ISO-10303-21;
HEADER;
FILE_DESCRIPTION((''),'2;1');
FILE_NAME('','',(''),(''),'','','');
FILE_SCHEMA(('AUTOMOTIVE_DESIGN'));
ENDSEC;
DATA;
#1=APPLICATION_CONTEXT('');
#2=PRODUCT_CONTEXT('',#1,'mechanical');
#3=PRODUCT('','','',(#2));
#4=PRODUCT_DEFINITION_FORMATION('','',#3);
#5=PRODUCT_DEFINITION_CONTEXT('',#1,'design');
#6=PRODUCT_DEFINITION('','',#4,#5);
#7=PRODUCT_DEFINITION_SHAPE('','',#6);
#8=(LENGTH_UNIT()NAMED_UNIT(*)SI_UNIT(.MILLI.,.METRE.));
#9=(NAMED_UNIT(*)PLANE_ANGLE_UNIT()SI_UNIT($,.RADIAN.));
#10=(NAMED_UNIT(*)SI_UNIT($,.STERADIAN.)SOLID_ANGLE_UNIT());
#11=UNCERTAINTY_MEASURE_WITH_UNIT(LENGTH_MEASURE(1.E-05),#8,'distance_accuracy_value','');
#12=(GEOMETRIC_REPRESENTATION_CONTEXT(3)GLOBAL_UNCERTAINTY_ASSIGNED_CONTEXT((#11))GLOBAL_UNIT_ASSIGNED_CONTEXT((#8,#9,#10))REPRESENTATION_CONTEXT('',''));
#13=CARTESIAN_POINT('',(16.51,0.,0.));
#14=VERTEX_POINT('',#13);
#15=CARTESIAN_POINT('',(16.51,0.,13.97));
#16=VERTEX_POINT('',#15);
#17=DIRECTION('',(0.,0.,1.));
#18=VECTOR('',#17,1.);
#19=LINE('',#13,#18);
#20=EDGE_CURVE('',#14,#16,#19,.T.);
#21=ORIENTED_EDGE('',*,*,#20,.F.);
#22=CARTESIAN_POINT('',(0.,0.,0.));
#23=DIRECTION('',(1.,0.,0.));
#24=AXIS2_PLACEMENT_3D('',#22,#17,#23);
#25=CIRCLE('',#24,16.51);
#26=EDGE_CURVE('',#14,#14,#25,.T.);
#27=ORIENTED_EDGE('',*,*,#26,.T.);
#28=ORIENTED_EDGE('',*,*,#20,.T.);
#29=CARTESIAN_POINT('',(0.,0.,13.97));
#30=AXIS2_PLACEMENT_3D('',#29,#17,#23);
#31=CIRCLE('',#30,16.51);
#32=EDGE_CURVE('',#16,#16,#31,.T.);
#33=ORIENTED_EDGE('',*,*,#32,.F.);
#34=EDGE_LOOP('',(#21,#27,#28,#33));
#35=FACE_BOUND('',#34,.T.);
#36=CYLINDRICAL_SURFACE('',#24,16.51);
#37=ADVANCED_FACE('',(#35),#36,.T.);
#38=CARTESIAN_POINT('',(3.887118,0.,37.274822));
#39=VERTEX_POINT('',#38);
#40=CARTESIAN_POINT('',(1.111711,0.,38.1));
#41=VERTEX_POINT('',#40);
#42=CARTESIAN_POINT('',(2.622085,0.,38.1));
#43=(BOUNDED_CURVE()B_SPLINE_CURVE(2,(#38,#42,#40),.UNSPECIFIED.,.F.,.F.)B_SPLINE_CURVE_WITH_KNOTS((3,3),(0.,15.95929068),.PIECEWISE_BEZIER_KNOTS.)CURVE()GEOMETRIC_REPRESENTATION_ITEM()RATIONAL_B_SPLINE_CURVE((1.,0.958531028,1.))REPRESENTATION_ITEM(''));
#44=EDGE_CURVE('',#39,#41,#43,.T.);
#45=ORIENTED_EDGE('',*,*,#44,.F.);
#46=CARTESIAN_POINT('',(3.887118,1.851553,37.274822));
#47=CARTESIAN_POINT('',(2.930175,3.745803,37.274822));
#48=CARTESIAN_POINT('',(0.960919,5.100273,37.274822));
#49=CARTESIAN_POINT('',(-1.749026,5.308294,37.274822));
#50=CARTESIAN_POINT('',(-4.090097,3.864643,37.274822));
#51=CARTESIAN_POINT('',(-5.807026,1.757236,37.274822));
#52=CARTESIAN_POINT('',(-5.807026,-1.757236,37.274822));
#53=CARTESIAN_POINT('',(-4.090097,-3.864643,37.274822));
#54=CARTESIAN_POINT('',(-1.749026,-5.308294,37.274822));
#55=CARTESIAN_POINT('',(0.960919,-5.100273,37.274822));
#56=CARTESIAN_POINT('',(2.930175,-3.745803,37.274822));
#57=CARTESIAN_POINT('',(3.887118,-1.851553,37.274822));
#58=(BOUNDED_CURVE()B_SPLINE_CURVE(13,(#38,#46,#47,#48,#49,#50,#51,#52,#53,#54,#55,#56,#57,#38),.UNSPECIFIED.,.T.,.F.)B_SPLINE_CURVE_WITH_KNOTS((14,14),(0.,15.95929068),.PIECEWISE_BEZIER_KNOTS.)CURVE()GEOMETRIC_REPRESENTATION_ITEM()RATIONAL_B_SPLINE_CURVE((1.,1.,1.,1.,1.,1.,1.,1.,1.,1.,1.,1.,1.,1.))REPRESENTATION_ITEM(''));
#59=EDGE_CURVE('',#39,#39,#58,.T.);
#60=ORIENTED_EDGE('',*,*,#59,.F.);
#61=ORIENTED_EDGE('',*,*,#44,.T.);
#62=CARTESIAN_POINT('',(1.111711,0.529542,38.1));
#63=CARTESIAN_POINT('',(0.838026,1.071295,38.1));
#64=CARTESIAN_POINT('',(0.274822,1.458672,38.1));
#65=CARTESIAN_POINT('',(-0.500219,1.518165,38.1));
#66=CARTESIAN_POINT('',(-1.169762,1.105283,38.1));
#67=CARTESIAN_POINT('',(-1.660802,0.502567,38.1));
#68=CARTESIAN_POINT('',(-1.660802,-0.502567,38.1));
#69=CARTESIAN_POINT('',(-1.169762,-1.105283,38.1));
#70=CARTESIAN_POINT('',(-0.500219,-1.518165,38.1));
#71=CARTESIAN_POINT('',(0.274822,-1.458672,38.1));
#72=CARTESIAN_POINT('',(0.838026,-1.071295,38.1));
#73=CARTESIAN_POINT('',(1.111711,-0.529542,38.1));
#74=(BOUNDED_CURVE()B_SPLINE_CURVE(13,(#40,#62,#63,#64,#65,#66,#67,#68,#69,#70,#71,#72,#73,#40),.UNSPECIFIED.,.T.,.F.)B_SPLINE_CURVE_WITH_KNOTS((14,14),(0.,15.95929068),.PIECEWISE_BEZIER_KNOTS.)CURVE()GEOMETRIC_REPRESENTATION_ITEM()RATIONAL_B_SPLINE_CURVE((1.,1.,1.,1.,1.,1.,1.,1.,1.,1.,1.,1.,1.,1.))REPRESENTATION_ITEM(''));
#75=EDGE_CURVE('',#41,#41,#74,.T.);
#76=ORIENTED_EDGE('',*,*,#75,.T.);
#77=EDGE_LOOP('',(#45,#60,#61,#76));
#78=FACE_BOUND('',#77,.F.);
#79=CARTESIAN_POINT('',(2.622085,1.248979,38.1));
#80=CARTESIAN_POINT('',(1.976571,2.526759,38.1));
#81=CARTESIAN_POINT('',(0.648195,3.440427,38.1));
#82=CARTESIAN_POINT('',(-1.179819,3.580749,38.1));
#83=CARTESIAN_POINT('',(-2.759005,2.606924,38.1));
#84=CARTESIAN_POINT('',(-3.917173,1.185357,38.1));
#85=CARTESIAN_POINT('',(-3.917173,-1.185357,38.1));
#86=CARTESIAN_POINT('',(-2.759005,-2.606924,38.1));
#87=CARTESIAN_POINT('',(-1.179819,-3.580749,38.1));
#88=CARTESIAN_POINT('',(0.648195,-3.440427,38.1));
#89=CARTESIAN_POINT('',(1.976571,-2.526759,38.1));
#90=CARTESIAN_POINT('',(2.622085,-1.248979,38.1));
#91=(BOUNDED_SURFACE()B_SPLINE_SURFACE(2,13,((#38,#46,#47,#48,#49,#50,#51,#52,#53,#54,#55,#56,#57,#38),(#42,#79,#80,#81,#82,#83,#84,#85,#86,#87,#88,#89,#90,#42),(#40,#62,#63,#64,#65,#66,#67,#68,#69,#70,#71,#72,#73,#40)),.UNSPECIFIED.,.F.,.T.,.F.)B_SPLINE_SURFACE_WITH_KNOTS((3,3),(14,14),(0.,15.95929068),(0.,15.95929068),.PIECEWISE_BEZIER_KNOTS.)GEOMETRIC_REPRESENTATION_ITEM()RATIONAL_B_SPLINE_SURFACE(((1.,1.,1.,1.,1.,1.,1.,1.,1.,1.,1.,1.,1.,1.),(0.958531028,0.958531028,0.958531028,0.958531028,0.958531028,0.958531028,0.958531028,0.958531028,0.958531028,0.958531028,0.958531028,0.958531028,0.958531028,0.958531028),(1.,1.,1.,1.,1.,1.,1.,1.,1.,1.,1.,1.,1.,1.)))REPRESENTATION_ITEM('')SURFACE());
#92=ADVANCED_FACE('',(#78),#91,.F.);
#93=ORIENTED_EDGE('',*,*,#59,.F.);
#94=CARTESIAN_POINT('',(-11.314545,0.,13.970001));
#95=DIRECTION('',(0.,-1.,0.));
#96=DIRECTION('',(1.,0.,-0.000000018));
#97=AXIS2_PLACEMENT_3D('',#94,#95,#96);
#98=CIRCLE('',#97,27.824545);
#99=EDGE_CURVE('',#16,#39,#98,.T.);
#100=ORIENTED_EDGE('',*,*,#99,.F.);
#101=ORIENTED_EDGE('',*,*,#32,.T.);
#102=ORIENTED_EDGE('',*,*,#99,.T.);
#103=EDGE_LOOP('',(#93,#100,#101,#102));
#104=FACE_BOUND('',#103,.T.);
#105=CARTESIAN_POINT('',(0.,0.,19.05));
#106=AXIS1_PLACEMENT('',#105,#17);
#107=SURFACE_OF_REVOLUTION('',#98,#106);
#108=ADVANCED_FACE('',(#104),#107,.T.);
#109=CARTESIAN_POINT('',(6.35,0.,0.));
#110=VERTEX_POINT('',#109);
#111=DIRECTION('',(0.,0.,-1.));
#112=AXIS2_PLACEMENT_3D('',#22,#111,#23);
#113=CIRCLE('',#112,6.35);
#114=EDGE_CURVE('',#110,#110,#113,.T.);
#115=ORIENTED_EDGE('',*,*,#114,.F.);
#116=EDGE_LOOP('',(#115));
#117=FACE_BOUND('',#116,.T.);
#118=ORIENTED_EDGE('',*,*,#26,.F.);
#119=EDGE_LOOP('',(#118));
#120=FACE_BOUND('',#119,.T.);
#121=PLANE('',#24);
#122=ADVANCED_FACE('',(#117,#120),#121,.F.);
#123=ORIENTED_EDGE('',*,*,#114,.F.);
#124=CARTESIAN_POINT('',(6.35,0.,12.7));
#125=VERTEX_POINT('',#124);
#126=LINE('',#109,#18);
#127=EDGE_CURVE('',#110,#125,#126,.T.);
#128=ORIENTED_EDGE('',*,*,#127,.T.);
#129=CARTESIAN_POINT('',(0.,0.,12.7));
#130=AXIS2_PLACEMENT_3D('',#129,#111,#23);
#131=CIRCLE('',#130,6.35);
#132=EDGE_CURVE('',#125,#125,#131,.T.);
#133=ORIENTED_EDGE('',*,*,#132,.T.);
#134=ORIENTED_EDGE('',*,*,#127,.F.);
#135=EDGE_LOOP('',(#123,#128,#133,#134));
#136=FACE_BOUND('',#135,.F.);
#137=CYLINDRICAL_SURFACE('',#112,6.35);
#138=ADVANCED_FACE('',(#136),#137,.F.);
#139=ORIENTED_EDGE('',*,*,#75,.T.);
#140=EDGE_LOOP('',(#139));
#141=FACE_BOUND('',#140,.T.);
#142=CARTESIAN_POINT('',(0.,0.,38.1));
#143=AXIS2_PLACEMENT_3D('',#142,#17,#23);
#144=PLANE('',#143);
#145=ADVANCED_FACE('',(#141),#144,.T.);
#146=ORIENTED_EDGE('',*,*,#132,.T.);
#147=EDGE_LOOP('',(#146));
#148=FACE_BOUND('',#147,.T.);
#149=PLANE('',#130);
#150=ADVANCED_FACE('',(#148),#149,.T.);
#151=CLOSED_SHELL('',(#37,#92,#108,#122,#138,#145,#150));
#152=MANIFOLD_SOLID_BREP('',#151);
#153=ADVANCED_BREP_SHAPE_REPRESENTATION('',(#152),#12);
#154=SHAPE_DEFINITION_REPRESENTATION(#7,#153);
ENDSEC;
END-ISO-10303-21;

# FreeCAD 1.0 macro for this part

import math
import FreeCAD as App
import Part
import Sketcher
Q = App.Units.Quantity


def edges_at(feature, points):
    """Names of the edges that pass closest to the given points."""
    edges = feature.Shape.Edges
    near = lambda p: min(range(len(edges)), key=lambda i: edges[i].distToShape(Part.Vertex(*p))[0])
    return sorted({f"Edge{near(p) + 1}" for p in points})

doc = App.newDocument("Part")
body = doc.addObject("PartDesign::Body", "Body")

# Sketch on XZ plane
sketch1 = doc.addObject("Sketcher::SketchObject", "Sketch")
body.addObject(sketch1)
sketch1.AttachmentSupport = (doc.XZ_Plane, [""])
sketch1.MapMode = "FlatFace"
sketch1.addGeometry([
    Part.LineSegment(App.Vector(0, 38.1, 0), App.Vector(0, 0, 0)),  # 0
    Part.LineSegment(App.Vector(0, 0, 0), App.Vector(16.5, 0, 0)),  # 1
    Part.LineSegment(App.Vector(16.5, 0, 0), App.Vector(16.5, 14, 0)),  # 2
    Part.ArcOfCircle(Part.Circle(App.Vector(-11.3, 14, 0), App.Vector(0, 0, 1), 27.8), math.radians(0), math.radians(60)),  # 3
    Part.LineSegment(App.Vector(2.5, 38.1, 0), App.Vector(0, 38.1, 0)),  # 4
], False)
sketch1.addConstraint([
    Sketcher.Constraint("Coincident", 0, 2, 1, 1),
    Sketcher.Constraint("Coincident", 1, 2, 2, 1),
    Sketcher.Constraint("Tangent", 2, 2, 3, 1),
    Sketcher.Constraint("Coincident", 3, 2, 4, 1),
    Sketcher.Constraint("Coincident", 4, 2, 0, 1),
    Sketcher.Constraint("Vertical", 0),
    Sketcher.Constraint("Horizontal", 1),
    Sketcher.Constraint("Vertical", 2),
    Sketcher.Constraint("Horizontal", 4),
    Sketcher.Constraint("Coincident", 0, 2, -1, 1),
    Sketcher.Constraint("DistanceX", 4, 2, 4, 1, Q("0.1 in")),
    Sketcher.Constraint("DistanceY", 0, 2, 0, 1, Q("1.5 in")),
    Sketcher.Constraint("DistanceX", 1, 1, 1, 2, Q("0.65 in")),
    Sketcher.Constraint("DistanceY", 2, 1, 2, 2, Q("0.55 in")),
])
revolution = doc.addObject("PartDesign::Revolution", "Revolution")
body.addObject(revolution)
revolution.Profile = sketch1
revolution.ReferenceAxis = (sketch1, ["V_Axis"])
revolution.Angle = 360
doc.recompute()

fillet = doc.addObject("PartDesign::Fillet", "Fillet")
body.addObject(fillet)
fillet.Base = (revolution, edges_at(revolution, [(-2.54, 0, 38.1)]))
fillet.Radius = Q("0.2 in")

# Sketch on XY plane
sketch2 = doc.addObject("Sketcher::SketchObject", "Sketch001")
body.addObject(sketch2)
sketch2.AttachmentSupport = (doc.XY_Plane, [""])
sketch2.MapMode = "FlatFace"
sketch2.addGeometry(Part.Circle(App.Vector(0, 0, 0), App.Vector(0, 0, 1), 6), False)
sketch2.addConstraint([
    Sketcher.Constraint("Coincident", 0, 3, -1, 1),
    Sketcher.Constraint("Diameter", 0, Q("0.5 in")),
])
pocket1 = doc.addObject("PartDesign::Pocket", "Pocket")
body.addObject(pocket1)
pocket1.Profile = sketch2
pocket1.Length = Q("0.5 in")
pocket1.Reversed = True

doc.recompute()
